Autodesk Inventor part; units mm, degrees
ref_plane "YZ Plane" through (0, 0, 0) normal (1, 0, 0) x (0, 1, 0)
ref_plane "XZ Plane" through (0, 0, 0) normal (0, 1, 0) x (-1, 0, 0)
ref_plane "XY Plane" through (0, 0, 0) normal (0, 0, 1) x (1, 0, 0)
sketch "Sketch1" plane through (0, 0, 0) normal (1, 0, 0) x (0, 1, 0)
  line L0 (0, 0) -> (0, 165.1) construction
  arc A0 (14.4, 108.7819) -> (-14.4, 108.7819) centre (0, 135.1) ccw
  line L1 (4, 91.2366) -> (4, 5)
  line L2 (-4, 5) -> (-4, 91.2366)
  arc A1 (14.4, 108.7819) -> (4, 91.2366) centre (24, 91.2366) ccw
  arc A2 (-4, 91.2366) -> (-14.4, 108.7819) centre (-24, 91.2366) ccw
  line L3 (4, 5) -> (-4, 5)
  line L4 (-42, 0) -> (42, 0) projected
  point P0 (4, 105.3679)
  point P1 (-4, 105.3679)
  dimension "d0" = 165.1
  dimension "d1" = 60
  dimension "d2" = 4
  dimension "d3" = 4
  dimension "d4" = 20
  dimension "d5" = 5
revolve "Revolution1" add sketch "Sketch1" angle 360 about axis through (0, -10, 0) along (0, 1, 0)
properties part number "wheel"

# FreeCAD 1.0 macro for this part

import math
import FreeCAD as App
import Part
import Sketcher
from FreeCAD import Vector
Q = App.Units.Quantity

doc = App.newDocument("Part")
body = doc.addObject("PartDesign::Body", "Body")

# Sketch on YZ plane
sketch1 = body.newObject("Sketcher::SketchObject", "Sketch")
sketch1.AttachmentSupport = (doc.getObject("YZ_Plane"), [""])
sketch1.MapMode = "FlatFace"
sketch1.addGeometry([
    Part.ArcOfCircle(Part.Circle(Vector(24, 91.2366, 0), Vector(0, 0, 1), 19.999939), math.radians(118.685498), math.radians(180)),  # 0
    Part.ArcOfCircle(Part.Circle(Vector(0, 135.1, 0), Vector(0, 0, 1), 30.00004), math.radians(-61.31464), math.radians(241.31464)),  # 1
    Part.ArcOfCircle(Part.Circle(Vector(-24, 91.2366, 0), Vector(0, 0, 1), 20), math.radians(0), math.radians(61.314502)),  # 2
    Part.LineSegment(Vector(-4, 91.2366, 0), Vector(-4, 5, 0)),  # 3
    Part.LineSegment(Vector(-4, 5, 0), Vector(4, 5, 0)),  # 4
    Part.LineSegment(Vector(4, 5, 0), Vector(4, 91.2366, 0)),  # 5
], False)
sketch1.addConstraint([
    Sketcher.Constraint("Tangent", 0, 1, 1, 1),
    Sketcher.Constraint("Tangent", 1, 2, 2, 2),
    Sketcher.Constraint("Tangent", 2, 1, 3, 1),
    Sketcher.Constraint("Coincident", 3, 2, 4, 1),
    Sketcher.Constraint("Coincident", 4, 2, 5, 1),
    Sketcher.Constraint("Tangent", 5, 2, 0, 2),
    Sketcher.Constraint("Vertical", 3),
    Sketcher.Constraint("Horizontal", 4),
    Sketcher.Constraint("Vertical", 5),
    Sketcher.Constraint("Equal", 0, 2),
    Sketcher.Constraint("Symmetric", 0, 3, 2, 3, -2),
    Sketcher.Constraint("Radius", 0, Q("20 mm")),
    Sketcher.Constraint("Radius", 1, Q("30 mm")),
    Sketcher.Constraint("DistanceX", 2, 1, -1, 1, Q("4 mm")),
    Sketcher.Constraint("DistanceY", -1, 1, 3, 2, Q("5 mm")),
    Sketcher.Constraint("DistanceY", -1, 1, 1, 3, Q("135.1 mm")),
])
revolution = body.newObject("PartDesign::Revolution", "Revolution")
revolution.Profile = sketch1
revolution.ReferenceAxis = (sketch1, ["H_Axis"])
revolution.Angle = 360

doc.recompute()
